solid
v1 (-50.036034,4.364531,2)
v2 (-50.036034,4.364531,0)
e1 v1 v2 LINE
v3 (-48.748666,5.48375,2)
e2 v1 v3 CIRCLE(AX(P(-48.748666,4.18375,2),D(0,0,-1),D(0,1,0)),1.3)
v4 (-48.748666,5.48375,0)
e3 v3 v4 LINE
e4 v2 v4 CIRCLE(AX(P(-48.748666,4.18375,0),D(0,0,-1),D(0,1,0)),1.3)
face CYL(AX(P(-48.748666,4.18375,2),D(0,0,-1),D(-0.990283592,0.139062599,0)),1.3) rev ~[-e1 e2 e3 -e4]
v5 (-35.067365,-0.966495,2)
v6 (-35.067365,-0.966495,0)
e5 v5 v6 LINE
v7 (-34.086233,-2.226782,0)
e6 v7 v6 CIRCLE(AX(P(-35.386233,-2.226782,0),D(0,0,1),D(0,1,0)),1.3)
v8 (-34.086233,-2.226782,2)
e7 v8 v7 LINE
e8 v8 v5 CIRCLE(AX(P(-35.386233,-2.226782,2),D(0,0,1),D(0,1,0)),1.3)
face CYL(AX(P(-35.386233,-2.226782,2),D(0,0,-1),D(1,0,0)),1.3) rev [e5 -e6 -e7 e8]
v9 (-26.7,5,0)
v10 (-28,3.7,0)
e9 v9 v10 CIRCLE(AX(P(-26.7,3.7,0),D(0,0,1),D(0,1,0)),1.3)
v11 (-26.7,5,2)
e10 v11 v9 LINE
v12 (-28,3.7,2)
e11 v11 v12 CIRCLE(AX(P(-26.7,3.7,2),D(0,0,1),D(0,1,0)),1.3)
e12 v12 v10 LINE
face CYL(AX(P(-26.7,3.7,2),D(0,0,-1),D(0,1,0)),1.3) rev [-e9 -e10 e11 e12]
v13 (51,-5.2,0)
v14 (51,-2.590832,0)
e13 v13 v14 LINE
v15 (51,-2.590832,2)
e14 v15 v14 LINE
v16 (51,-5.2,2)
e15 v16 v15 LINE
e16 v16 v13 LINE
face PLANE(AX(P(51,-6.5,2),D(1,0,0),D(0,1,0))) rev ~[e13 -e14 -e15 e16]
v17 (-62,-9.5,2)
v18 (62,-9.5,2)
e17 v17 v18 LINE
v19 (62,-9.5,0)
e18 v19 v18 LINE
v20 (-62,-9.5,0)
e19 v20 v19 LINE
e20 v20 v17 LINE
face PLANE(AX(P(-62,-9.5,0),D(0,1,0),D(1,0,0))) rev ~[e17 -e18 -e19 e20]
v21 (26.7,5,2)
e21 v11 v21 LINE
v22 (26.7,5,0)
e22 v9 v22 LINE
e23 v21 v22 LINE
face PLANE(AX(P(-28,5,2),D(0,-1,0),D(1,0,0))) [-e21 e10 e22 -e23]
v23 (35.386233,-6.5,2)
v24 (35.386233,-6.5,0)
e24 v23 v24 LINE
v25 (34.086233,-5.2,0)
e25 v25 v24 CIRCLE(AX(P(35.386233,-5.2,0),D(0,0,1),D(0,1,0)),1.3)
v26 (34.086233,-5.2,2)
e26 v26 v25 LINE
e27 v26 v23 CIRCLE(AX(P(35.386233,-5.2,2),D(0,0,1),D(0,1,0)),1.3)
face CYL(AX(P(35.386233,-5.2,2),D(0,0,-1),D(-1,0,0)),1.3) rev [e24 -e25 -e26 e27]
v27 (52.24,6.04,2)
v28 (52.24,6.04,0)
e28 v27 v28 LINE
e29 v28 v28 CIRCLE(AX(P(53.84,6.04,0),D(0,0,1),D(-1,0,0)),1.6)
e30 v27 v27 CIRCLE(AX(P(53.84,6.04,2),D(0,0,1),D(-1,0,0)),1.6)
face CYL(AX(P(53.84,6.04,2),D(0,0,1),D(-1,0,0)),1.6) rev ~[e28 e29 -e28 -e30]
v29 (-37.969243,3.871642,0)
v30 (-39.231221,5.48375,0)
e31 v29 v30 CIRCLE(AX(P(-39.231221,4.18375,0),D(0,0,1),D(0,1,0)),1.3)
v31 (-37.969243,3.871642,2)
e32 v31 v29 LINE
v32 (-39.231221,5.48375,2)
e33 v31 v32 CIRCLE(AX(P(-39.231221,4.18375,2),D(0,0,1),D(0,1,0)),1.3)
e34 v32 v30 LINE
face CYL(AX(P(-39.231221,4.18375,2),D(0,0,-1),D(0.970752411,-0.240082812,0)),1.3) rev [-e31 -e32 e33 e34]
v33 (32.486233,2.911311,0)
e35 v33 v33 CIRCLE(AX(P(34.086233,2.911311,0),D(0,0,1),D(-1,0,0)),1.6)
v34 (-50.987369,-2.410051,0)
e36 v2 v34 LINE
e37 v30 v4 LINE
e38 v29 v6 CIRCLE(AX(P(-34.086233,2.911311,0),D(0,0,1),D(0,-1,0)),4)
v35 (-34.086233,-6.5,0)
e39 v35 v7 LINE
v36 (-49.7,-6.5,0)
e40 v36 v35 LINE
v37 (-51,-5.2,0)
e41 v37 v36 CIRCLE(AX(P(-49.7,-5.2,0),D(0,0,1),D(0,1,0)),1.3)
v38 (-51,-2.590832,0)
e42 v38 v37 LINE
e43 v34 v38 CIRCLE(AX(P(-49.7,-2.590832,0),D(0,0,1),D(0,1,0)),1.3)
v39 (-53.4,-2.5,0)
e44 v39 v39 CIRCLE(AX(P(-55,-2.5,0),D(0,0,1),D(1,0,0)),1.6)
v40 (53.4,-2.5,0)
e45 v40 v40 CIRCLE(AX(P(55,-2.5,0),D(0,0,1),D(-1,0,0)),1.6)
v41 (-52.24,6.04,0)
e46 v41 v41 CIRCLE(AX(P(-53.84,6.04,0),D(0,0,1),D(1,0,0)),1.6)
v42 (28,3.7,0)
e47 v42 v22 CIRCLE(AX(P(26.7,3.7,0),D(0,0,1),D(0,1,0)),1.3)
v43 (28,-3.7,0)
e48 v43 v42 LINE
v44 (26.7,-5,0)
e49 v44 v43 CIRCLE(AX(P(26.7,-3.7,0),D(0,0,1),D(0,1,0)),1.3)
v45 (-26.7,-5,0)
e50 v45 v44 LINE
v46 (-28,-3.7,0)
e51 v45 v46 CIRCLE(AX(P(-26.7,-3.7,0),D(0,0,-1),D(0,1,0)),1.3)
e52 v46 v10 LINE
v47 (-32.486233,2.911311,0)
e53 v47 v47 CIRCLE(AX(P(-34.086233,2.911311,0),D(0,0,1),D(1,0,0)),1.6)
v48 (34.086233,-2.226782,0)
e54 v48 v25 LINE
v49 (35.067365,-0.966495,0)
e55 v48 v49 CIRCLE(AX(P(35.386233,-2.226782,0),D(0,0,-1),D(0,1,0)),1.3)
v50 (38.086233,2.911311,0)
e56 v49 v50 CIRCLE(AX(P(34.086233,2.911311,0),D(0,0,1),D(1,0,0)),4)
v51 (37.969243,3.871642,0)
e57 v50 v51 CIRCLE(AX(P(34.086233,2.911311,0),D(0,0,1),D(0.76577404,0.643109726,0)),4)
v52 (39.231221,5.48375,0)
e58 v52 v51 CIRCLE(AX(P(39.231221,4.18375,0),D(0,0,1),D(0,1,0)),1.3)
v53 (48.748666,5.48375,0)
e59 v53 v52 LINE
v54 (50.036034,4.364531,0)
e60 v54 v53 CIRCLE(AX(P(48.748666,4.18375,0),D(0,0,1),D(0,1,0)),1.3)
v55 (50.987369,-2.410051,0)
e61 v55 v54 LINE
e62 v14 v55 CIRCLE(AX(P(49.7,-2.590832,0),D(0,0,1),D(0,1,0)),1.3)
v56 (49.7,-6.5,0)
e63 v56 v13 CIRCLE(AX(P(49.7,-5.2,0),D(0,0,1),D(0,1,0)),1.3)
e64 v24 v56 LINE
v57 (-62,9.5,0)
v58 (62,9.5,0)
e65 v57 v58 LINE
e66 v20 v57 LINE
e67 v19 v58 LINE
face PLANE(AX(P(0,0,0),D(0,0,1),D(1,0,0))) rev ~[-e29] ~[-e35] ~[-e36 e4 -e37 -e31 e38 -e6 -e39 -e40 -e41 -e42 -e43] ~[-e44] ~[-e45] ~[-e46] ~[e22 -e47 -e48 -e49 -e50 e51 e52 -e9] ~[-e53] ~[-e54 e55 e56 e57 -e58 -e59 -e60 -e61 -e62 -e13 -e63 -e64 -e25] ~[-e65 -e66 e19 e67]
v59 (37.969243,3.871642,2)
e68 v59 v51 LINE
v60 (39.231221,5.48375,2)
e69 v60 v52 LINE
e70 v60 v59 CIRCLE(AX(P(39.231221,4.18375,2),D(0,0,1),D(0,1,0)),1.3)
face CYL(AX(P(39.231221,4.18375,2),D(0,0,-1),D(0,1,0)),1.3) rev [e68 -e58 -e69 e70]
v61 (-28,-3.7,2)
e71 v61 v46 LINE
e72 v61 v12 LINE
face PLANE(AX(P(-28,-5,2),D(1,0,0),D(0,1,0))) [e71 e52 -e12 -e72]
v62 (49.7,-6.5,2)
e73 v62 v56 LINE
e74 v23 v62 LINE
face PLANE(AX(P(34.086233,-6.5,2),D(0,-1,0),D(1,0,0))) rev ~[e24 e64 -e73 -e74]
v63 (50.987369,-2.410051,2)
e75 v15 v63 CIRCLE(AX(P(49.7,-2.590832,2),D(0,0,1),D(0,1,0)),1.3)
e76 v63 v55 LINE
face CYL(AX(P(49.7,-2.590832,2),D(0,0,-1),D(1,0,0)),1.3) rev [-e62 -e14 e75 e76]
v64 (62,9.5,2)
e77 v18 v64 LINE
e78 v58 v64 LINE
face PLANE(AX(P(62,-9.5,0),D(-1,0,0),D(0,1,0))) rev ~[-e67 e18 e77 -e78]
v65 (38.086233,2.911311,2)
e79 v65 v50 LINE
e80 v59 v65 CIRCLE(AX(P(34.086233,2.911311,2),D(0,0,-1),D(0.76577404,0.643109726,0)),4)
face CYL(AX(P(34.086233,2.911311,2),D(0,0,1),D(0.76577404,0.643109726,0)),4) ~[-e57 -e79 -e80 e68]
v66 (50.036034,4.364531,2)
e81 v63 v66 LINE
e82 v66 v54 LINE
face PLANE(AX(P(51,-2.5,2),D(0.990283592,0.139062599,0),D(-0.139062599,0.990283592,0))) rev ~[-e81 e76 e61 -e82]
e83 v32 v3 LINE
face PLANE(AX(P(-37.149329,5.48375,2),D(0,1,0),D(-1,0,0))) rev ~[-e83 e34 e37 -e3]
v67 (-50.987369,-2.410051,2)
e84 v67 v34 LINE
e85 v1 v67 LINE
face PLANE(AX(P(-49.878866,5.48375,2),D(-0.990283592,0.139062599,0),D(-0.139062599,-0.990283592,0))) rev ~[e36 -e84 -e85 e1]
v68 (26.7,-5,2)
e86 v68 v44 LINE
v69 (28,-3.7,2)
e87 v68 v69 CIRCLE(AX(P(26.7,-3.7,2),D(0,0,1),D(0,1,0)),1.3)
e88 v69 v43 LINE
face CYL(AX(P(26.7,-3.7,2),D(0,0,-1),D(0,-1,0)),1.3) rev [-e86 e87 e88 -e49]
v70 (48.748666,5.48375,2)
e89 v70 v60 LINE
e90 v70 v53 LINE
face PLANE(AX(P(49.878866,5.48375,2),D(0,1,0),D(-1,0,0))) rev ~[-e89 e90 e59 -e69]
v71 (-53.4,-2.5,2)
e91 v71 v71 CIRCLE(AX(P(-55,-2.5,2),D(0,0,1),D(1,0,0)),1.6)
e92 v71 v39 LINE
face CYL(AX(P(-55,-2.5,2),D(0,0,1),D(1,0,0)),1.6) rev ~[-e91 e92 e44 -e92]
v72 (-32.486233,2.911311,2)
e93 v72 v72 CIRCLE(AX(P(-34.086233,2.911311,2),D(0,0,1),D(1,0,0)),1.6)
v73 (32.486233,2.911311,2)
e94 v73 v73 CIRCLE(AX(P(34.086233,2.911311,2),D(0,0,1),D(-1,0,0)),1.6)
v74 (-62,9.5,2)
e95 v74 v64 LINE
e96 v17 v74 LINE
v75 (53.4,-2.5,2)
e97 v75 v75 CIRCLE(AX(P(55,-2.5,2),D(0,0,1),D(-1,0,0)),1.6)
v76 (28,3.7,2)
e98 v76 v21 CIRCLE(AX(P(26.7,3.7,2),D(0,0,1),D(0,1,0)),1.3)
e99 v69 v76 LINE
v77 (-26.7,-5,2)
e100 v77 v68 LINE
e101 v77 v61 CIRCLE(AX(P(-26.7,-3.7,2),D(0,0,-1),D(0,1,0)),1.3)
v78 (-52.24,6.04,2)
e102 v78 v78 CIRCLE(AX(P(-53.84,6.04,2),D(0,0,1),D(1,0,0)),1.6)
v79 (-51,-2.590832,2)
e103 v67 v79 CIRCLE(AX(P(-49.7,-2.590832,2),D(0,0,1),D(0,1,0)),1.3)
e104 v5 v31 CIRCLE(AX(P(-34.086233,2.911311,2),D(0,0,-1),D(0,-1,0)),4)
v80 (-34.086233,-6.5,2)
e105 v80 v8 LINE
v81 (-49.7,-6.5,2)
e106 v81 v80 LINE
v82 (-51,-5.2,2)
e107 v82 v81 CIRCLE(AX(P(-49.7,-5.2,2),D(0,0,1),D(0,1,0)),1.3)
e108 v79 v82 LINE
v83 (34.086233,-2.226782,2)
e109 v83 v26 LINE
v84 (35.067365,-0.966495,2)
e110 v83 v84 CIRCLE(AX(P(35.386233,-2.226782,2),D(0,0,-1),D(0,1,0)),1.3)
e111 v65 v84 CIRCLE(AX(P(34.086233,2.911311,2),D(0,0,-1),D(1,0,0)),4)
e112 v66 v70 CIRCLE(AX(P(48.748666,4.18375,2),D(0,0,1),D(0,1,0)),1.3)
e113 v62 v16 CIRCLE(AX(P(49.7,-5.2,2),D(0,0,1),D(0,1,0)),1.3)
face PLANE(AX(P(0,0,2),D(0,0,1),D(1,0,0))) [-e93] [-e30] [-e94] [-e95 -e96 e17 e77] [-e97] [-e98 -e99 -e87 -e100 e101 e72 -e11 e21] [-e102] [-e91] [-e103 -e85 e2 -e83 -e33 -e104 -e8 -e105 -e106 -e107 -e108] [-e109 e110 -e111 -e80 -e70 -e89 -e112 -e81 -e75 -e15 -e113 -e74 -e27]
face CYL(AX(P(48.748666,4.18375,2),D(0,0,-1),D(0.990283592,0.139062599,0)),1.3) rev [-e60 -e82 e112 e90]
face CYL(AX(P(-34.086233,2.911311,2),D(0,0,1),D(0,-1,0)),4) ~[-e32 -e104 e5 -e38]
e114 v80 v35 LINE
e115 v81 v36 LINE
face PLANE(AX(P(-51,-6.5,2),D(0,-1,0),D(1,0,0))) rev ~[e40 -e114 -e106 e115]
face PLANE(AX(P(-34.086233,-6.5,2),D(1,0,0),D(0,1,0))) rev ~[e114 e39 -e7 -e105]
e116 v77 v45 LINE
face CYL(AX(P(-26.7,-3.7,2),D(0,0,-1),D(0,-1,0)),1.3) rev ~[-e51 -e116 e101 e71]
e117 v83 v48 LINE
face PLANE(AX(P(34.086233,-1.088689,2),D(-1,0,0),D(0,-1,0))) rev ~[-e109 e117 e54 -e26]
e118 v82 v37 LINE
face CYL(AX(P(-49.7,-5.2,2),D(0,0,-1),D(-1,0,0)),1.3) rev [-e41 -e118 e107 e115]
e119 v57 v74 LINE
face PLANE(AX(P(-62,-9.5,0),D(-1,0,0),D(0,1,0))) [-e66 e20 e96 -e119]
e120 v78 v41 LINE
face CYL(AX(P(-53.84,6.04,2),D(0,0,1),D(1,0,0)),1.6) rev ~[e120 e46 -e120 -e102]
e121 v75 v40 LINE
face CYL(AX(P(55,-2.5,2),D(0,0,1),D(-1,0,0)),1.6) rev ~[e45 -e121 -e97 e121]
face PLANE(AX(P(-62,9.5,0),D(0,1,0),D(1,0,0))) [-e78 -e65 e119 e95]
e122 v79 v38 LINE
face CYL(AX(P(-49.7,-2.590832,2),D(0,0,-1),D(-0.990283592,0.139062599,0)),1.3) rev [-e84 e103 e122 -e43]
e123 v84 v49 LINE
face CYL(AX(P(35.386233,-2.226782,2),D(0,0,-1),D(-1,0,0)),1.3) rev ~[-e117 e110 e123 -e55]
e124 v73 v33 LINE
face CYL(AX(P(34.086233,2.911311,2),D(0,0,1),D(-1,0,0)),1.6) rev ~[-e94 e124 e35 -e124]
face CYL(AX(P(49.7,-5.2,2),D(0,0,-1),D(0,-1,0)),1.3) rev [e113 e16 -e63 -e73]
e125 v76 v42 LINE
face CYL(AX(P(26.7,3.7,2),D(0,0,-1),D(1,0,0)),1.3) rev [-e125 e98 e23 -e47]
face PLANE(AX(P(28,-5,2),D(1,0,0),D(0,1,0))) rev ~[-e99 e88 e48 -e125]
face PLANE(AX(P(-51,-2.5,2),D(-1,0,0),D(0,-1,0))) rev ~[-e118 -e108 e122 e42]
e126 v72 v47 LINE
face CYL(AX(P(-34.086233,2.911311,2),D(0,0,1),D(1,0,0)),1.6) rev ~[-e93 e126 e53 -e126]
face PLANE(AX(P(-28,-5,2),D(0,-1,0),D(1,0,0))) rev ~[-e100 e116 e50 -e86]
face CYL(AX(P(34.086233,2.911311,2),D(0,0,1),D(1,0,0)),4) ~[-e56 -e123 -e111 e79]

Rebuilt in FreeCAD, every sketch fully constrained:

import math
import FreeCAD as App
import Part
import Sketcher
from FreeCAD import Vector


def edges_at(feature, points):
    """Names of the edges that pass closest to the given points."""
    edges = feature.Shape.Edges
    near = lambda p: min(range(len(edges)), key=lambda i: edges[i].distToShape(Part.Vertex(*p))[0])
    return sorted({f"Edge{near(p) + 1}" for p in points})


def add_polygon(sketch, points):
    """Adds a closed chain of lines whose ends are joined by coincident constraints."""
    first, n = sketch.GeometryCount, len(points)
    for a, b in zip(points, points[1:] + points[:1]):
        sketch.addGeometry(Part.LineSegment(App.Vector(*a, 0), App.Vector(*b, 0)), False)
    for i in range(n):
        sketch.addConstraint(Sketcher.Constraint("Coincident", first + i, 2, first + (i + 1) % n, 1))

doc = App.newDocument("Part")
params = doc.addObject("Spreadsheet::Sheet", "Params")
for row, (alias, value) in enumerate([
    ("sketch1_width", "124 mm"),
    ("sketch1_height", "19 mm"),
    ("pad1_length", "2 mm"),
    ("sketch2_diameter", "3.2 mm"),
    ("sketch3_diameter", "3.2 mm"),
    ("sketch4_radius", "4 mm"),
    ("sketch4_width", "56 mm"),
    ("sketch4_height", "4 mm"),
    ("sketch4_height2", "10 mm"),
    ("fillet_radius", "1.3 mm"),
], start=1):
    params.set(f"A{row}", alias)
    params.set(f"B{row}", "=" + value)
    params.setAlias(f"B{row}", alias)

body = doc.addObject("PartDesign::Body", "Body")

# Sketch on XY plane
sketch1 = doc.addObject("Sketcher::SketchObject", "Sketch")
body.addObject(sketch1)
sketch1.AttachmentSupport = (doc.XY_Plane, [""])
sketch1.MapMode = "FlatFace"
add_polygon(sketch1, [(-62, 10), (-62, -10), (62, -10), (62, 10)])  # lines 0-3
sketch1.addConstraint(Sketcher.Constraint("Vertical", 0))
sketch1.addConstraint(Sketcher.Constraint("Horizontal", 1))
sketch1.addConstraint(Sketcher.Constraint("Vertical", 2))
sketch1.addConstraint(Sketcher.Constraint("Horizontal", 3))
sketch1.addConstraint(Sketcher.Constraint("Symmetric", 0, 2, 2, 2, -1, 1))
sketch1.addConstraint(Sketcher.Constraint("DistanceX", 1, 1, 1, 2, 124.0))
sketch1.addConstraint(Sketcher.Constraint("DistanceY", 0, 2, 0, 1, 19.0))
sketch1.setExpression("Constraints[9]", "Params.sketch1_width")
sketch1.setExpression("Constraints[10]", "Params.sketch1_height")
pad1 = doc.addObject("PartDesign::Pad", "Pad")
body.addObject(pad1)
pad1.Profile = sketch1
pad1.setExpression("Length", "Params.pad1_length")

# Sketch on XY plane
sketch2 = doc.addObject("Sketcher::SketchObject", "Sketch001")
body.addObject(sketch2)
sketch2.AttachmentSupport = (doc.XY_Plane, [""])
sketch2.MapMode = "FlatFace"
sketch2.AttachmentOffset = App.Placement(Vector(0, 0, 2), App.Rotation())
sketch2.addGeometry(Part.Circle(Vector(-55, -2.5, 0), Vector(0, 0, 1), 1.6), False)
sketch2.addGeometry(Part.Circle(Vector(55, -2.5, 0), Vector(0, 0, 1), 1.6), False)
sketch2.addConstraint(Sketcher.Constraint("Equal", 0, 1))
sketch2.addConstraint(Sketcher.Constraint("Symmetric", 0, 3, 1, 3, -2))
sketch2.addConstraint(Sketcher.Constraint("Diameter", 0, 3.2))
sketch2.addConstraint(Sketcher.Constraint("DistanceX", 0, 3, -1, 1, 55.0))
sketch2.addConstraint(Sketcher.Constraint("DistanceY", 0, 3, -1, 1, 2.5))
sketch2.setExpression("Constraints[2]", "Params.sketch2_diameter")
pocket1 = doc.addObject("PartDesign::Pocket", "Pocket")
body.addObject(pocket1)
pocket1.Profile = sketch2
pocket1.Type = "ThroughAll"

# Sketch on XY plane
sketch3 = doc.addObject("Sketcher::SketchObject", "Sketch002")
body.addObject(sketch3)
sketch3.AttachmentSupport = (doc.XY_Plane, [""])
sketch3.MapMode = "FlatFace"
sketch3.AttachmentOffset = App.Placement(Vector(0, 0, 2), App.Rotation())
sketch3.addGeometry(Part.Circle(Vector(-53.8, 6, 0), Vector(0, 0, 1), 1.6), False)
sketch3.addGeometry(Part.Circle(Vector(-34.1, 2.9, 0), Vector(0, 0, 1), 1.6), False)
sketch3.addGeometry(Part.Circle(Vector(34.1, 2.9, 0), Vector(0, 0, 1), 1.6), False)
sketch3.addGeometry(Part.Circle(Vector(53.8, 6, 0), Vector(0, 0, 1), 1.6), False)
sketch3.addConstraint(Sketcher.Constraint("Equal", 0, 1))
sketch3.addConstraint(Sketcher.Constraint("Equal", 1, 2))
sketch3.addConstraint(Sketcher.Constraint("Equal", 2, 3))
sketch3.addConstraint(Sketcher.Constraint("Symmetric", 1, 3, 2, 3, -2))
sketch3.addConstraint(Sketcher.Constraint("Symmetric", 0, 3, 3, 3, -2))
sketch3.addConstraint(Sketcher.Constraint("Diameter", 0, 3.2))
sketch3.addConstraint(Sketcher.Constraint("DistanceX", 0, 3, -1, 1, 53.84))
sketch3.addConstraint(Sketcher.Constraint("DistanceY", -1, 1, 0, 3, 6.04))
sketch3.addConstraint(Sketcher.Constraint("DistanceY", -1, 1, 1, 3, 2.911311))
sketch3.addConstraint(Sketcher.Constraint("DistanceX", 1, 3, -1, 1, 34.086233))
sketch3.setExpression("Constraints[5]", "Params.sketch3_diameter")
pocket2 = doc.addObject("PartDesign::Pocket", "Pocket001")
body.addObject(pocket2)
pocket2.Profile = sketch3
pocket2.Type = "ThroughAll"

# Sketch on XY plane
sketch4 = doc.addObject("Sketcher::SketchObject", "Sketch003")
body.addObject(sketch4)
sketch4.AttachmentSupport = (doc.XY_Plane, [""])
sketch4.MapMode = "FlatFace"
sketch4.AttachmentOffset = App.Placement(Vector(0, 0, 2), App.Rotation())
sketch4.addGeometry(Part.LineSegment(Vector(-49.9, 5.5, 0), Vector(-51, -2.5, 0)), False)  # 0
sketch4.addGeometry(Part.LineSegment(Vector(-51, -2.5, 0), Vector(-51, -6.5, 0)), False)  # 1
sketch4.addGeometry(Part.LineSegment(Vector(-51, -6.5, 0), Vector(-34.1, -6.5, 0)), False)  # 2
sketch4.addGeometry(Part.LineSegment(Vector(-34.1, -6.5, 0), Vector(-34.1, -1.1, 0)), False)  # 3
sketch4.addGeometry(Part.ArcOfCircle(Part.Circle(Vector(-34.1, 2.9, 0), Vector(0, 0, 1), 4), math.radians(140), math.radians(270)), False)  # 4
sketch4.addGeometry(Part.LineSegment(Vector(-37.1, 5.5, 0), Vector(-49.9, 5.5, 0)), False)  # 5
add_polygon(sketch4, [(-28, 5), (-28, -5), (28, -5), (28, 5)])  # lines 6-9
sketch4.addGeometry(Part.LineSegment(Vector(34.1, -1.1, 0), Vector(34.1, -6.5, 0)), False)  # 10
sketch4.addGeometry(Part.LineSegment(Vector(34.1, -6.5, 0), Vector(51, -6.5, 0)), False)  # 11
sketch4.addGeometry(Part.LineSegment(Vector(51, -6.5, 0), Vector(51, -2.5, 0)), False)  # 12
sketch4.addGeometry(Part.LineSegment(Vector(51, -2.5, 0), Vector(49.9, 5.5, 0)), False)  # 13
sketch4.addGeometry(Part.LineSegment(Vector(49.9, 5.5, 0), Vector(37.1, 5.5, 0)), False)  # 14
sketch4.addGeometry(Part.ArcOfCircle(Part.Circle(Vector(34.1, 2.9, 0), Vector(0, 0, 1), 4), math.radians(0), math.radians(40)), False)  # 15
sketch4.addGeometry(Part.ArcOfCircle(Part.Circle(Vector(34.1, 2.9, 0), Vector(0, 0, 1), 4), math.radians(-90), math.radians(0)), False)  # 16
sketch4.addConstraint(Sketcher.Constraint("Coincident", 0, 2, 1, 1))
sketch4.addConstraint(Sketcher.Constraint("Coincident", 1, 2, 2, 1))
sketch4.addConstraint(Sketcher.Constraint("Coincident", 2, 2, 3, 1))
sketch4.addConstraint(Sketcher.Constraint("Coincident", 3, 2, 4, 2))
sketch4.addConstraint(Sketcher.Constraint("Coincident", 4, 1, 5, 1))
sketch4.addConstraint(Sketcher.Constraint("Coincident", 5, 2, 0, 1))
sketch4.addConstraint(Sketcher.Constraint("Coincident", 10, 2, 11, 1))
sketch4.addConstraint(Sketcher.Constraint("Coincident", 11, 2, 12, 1))
sketch4.addConstraint(Sketcher.Constraint("Coincident", 12, 2, 13, 1))
sketch4.addConstraint(Sketcher.Constraint("Coincident", 13, 2, 14, 1))
sketch4.addConstraint(Sketcher.Constraint("Coincident", 14, 2, 15, 2))
sketch4.addConstraint(Sketcher.Constraint("Tangent", 15, 1, 16, 2))
sketch4.addConstraint(Sketcher.Constraint("Coincident", 16, 1, 10, 1))
sketch4.addConstraint(Sketcher.Constraint("Vertical", 1))
sketch4.addConstraint(Sketcher.Constraint("Horizontal", 2))
sketch4.addConstraint(Sketcher.Constraint("Vertical", 3))
sketch4.addConstraint(Sketcher.Constraint("Horizontal", 5))
sketch4.addConstraint(Sketcher.Constraint("Vertical", 6))
sketch4.addConstraint(Sketcher.Constraint("Horizontal", 7))
sketch4.addConstraint(Sketcher.Constraint("Vertical", 8))
sketch4.addConstraint(Sketcher.Constraint("Horizontal", 9))
sketch4.addConstraint(Sketcher.Constraint("Vertical", 10))
sketch4.addConstraint(Sketcher.Constraint("Horizontal", 11))
sketch4.addConstraint(Sketcher.Constraint("Vertical", 12))
sketch4.addConstraint(Sketcher.Constraint("Horizontal", 14))
sketch4.addConstraint(Sketcher.Constraint("Equal", 4, 15))
sketch4.addConstraint(Sketcher.Constraint("Equal", 15, 16))
sketch4.addConstraint(Sketcher.Constraint("Symmetric", 6, 2, 8, 2, -1, 1))
sketch4.addConstraint(Sketcher.Constraint("Symmetric", 4, 3, 15, 3, -2))
sketch4.addConstraint(Sketcher.Constraint("Symmetric", 2, 2, 10, 2, -2))
sketch4.addConstraint(Sketcher.Constraint("Symmetric", 0, 2, 12, 2, -2))
sketch4.addConstraint(Sketcher.Constraint("Symmetric", 5, 2, 13, 2, -2))
sketch4.addConstraint(Sketcher.Constraint("Horizontal", 16, 3, 15, 1))
sketch4.addConstraint(Sketcher.Constraint("Vertical", 4, 3, 2, 2))
sketch4.addConstraint(Sketcher.Constraint("Radius", 4, 4.0))
sketch4.addConstraint(Sketcher.Constraint("DistanceX", 7, 1, 7, 2, 56.0))
sketch4.addConstraint(Sketcher.Constraint("DistanceY", 1, 2, 1, 1, 4.0))
sketch4.addConstraint(Sketcher.Constraint("DistanceY", 6, 2, 6, 1, 10.0))
sketch4.addConstraint(Sketcher.Constraint("DistanceX", 0, 2, -1, 1, 51.0))
sketch4.addConstraint(Sketcher.Constraint("DistanceY", 0, 2, -1, 1, 2.5))
sketch4.addConstraint(Sketcher.Constraint("DistanceY", 3, 1, 3, 2, 5.411311))
sketch4.addConstraint(Sketcher.Constraint("DistanceX", 2, 1, 2, 2, 16.913767))
sketch4.addConstraint(Sketcher.Constraint("DistanceX", 5, 2, 5, 1, 12.729536))
sketch4.addConstraint(Sketcher.Constraint("DistanceX", 4, 1, -1, 1, 37.149329))
sketch4.setExpression("Constraints[38]", "Params.sketch4_radius")
sketch4.setExpression("Constraints[39]", "Params.sketch4_width")
sketch4.setExpression("Constraints[40]", "Params.sketch4_height")
sketch4.setExpression("Constraints[41]", "Params.sketch4_height2")
pocket3 = doc.addObject("PartDesign::Pocket", "Pocket002")
body.addObject(pocket3)
pocket3.Profile = sketch4
pocket3.Type = "ThroughAll"
doc.recompute()

fillet = doc.addObject("PartDesign::Fillet", "Fillet")
body.addObject(fillet)
fillet.Base = (pocket3, edges_at(pocket3, [
    (-37.149, 5.484, 1),
    (-34.086, -1.089, 1),
    (-51, -6.5, 1),
    (-51, -2.5, 1),
    (-49.879, 5.484, 1),
    (-28, -5, 1),
    (-28, 5, 1),
    (28, 5, 1),
    (28, -5, 1),
    (37.149, 5.484, 1),
    (49.879, 5.484, 1),
    (51, -2.5, 1),
    (51, -6.5, 1),
    (34.086, -6.5, 1),
    (34.086, -1.089, 1),
]))
fillet.setExpression("Radius", "Params.fillet_radius")

doc.recompute()
